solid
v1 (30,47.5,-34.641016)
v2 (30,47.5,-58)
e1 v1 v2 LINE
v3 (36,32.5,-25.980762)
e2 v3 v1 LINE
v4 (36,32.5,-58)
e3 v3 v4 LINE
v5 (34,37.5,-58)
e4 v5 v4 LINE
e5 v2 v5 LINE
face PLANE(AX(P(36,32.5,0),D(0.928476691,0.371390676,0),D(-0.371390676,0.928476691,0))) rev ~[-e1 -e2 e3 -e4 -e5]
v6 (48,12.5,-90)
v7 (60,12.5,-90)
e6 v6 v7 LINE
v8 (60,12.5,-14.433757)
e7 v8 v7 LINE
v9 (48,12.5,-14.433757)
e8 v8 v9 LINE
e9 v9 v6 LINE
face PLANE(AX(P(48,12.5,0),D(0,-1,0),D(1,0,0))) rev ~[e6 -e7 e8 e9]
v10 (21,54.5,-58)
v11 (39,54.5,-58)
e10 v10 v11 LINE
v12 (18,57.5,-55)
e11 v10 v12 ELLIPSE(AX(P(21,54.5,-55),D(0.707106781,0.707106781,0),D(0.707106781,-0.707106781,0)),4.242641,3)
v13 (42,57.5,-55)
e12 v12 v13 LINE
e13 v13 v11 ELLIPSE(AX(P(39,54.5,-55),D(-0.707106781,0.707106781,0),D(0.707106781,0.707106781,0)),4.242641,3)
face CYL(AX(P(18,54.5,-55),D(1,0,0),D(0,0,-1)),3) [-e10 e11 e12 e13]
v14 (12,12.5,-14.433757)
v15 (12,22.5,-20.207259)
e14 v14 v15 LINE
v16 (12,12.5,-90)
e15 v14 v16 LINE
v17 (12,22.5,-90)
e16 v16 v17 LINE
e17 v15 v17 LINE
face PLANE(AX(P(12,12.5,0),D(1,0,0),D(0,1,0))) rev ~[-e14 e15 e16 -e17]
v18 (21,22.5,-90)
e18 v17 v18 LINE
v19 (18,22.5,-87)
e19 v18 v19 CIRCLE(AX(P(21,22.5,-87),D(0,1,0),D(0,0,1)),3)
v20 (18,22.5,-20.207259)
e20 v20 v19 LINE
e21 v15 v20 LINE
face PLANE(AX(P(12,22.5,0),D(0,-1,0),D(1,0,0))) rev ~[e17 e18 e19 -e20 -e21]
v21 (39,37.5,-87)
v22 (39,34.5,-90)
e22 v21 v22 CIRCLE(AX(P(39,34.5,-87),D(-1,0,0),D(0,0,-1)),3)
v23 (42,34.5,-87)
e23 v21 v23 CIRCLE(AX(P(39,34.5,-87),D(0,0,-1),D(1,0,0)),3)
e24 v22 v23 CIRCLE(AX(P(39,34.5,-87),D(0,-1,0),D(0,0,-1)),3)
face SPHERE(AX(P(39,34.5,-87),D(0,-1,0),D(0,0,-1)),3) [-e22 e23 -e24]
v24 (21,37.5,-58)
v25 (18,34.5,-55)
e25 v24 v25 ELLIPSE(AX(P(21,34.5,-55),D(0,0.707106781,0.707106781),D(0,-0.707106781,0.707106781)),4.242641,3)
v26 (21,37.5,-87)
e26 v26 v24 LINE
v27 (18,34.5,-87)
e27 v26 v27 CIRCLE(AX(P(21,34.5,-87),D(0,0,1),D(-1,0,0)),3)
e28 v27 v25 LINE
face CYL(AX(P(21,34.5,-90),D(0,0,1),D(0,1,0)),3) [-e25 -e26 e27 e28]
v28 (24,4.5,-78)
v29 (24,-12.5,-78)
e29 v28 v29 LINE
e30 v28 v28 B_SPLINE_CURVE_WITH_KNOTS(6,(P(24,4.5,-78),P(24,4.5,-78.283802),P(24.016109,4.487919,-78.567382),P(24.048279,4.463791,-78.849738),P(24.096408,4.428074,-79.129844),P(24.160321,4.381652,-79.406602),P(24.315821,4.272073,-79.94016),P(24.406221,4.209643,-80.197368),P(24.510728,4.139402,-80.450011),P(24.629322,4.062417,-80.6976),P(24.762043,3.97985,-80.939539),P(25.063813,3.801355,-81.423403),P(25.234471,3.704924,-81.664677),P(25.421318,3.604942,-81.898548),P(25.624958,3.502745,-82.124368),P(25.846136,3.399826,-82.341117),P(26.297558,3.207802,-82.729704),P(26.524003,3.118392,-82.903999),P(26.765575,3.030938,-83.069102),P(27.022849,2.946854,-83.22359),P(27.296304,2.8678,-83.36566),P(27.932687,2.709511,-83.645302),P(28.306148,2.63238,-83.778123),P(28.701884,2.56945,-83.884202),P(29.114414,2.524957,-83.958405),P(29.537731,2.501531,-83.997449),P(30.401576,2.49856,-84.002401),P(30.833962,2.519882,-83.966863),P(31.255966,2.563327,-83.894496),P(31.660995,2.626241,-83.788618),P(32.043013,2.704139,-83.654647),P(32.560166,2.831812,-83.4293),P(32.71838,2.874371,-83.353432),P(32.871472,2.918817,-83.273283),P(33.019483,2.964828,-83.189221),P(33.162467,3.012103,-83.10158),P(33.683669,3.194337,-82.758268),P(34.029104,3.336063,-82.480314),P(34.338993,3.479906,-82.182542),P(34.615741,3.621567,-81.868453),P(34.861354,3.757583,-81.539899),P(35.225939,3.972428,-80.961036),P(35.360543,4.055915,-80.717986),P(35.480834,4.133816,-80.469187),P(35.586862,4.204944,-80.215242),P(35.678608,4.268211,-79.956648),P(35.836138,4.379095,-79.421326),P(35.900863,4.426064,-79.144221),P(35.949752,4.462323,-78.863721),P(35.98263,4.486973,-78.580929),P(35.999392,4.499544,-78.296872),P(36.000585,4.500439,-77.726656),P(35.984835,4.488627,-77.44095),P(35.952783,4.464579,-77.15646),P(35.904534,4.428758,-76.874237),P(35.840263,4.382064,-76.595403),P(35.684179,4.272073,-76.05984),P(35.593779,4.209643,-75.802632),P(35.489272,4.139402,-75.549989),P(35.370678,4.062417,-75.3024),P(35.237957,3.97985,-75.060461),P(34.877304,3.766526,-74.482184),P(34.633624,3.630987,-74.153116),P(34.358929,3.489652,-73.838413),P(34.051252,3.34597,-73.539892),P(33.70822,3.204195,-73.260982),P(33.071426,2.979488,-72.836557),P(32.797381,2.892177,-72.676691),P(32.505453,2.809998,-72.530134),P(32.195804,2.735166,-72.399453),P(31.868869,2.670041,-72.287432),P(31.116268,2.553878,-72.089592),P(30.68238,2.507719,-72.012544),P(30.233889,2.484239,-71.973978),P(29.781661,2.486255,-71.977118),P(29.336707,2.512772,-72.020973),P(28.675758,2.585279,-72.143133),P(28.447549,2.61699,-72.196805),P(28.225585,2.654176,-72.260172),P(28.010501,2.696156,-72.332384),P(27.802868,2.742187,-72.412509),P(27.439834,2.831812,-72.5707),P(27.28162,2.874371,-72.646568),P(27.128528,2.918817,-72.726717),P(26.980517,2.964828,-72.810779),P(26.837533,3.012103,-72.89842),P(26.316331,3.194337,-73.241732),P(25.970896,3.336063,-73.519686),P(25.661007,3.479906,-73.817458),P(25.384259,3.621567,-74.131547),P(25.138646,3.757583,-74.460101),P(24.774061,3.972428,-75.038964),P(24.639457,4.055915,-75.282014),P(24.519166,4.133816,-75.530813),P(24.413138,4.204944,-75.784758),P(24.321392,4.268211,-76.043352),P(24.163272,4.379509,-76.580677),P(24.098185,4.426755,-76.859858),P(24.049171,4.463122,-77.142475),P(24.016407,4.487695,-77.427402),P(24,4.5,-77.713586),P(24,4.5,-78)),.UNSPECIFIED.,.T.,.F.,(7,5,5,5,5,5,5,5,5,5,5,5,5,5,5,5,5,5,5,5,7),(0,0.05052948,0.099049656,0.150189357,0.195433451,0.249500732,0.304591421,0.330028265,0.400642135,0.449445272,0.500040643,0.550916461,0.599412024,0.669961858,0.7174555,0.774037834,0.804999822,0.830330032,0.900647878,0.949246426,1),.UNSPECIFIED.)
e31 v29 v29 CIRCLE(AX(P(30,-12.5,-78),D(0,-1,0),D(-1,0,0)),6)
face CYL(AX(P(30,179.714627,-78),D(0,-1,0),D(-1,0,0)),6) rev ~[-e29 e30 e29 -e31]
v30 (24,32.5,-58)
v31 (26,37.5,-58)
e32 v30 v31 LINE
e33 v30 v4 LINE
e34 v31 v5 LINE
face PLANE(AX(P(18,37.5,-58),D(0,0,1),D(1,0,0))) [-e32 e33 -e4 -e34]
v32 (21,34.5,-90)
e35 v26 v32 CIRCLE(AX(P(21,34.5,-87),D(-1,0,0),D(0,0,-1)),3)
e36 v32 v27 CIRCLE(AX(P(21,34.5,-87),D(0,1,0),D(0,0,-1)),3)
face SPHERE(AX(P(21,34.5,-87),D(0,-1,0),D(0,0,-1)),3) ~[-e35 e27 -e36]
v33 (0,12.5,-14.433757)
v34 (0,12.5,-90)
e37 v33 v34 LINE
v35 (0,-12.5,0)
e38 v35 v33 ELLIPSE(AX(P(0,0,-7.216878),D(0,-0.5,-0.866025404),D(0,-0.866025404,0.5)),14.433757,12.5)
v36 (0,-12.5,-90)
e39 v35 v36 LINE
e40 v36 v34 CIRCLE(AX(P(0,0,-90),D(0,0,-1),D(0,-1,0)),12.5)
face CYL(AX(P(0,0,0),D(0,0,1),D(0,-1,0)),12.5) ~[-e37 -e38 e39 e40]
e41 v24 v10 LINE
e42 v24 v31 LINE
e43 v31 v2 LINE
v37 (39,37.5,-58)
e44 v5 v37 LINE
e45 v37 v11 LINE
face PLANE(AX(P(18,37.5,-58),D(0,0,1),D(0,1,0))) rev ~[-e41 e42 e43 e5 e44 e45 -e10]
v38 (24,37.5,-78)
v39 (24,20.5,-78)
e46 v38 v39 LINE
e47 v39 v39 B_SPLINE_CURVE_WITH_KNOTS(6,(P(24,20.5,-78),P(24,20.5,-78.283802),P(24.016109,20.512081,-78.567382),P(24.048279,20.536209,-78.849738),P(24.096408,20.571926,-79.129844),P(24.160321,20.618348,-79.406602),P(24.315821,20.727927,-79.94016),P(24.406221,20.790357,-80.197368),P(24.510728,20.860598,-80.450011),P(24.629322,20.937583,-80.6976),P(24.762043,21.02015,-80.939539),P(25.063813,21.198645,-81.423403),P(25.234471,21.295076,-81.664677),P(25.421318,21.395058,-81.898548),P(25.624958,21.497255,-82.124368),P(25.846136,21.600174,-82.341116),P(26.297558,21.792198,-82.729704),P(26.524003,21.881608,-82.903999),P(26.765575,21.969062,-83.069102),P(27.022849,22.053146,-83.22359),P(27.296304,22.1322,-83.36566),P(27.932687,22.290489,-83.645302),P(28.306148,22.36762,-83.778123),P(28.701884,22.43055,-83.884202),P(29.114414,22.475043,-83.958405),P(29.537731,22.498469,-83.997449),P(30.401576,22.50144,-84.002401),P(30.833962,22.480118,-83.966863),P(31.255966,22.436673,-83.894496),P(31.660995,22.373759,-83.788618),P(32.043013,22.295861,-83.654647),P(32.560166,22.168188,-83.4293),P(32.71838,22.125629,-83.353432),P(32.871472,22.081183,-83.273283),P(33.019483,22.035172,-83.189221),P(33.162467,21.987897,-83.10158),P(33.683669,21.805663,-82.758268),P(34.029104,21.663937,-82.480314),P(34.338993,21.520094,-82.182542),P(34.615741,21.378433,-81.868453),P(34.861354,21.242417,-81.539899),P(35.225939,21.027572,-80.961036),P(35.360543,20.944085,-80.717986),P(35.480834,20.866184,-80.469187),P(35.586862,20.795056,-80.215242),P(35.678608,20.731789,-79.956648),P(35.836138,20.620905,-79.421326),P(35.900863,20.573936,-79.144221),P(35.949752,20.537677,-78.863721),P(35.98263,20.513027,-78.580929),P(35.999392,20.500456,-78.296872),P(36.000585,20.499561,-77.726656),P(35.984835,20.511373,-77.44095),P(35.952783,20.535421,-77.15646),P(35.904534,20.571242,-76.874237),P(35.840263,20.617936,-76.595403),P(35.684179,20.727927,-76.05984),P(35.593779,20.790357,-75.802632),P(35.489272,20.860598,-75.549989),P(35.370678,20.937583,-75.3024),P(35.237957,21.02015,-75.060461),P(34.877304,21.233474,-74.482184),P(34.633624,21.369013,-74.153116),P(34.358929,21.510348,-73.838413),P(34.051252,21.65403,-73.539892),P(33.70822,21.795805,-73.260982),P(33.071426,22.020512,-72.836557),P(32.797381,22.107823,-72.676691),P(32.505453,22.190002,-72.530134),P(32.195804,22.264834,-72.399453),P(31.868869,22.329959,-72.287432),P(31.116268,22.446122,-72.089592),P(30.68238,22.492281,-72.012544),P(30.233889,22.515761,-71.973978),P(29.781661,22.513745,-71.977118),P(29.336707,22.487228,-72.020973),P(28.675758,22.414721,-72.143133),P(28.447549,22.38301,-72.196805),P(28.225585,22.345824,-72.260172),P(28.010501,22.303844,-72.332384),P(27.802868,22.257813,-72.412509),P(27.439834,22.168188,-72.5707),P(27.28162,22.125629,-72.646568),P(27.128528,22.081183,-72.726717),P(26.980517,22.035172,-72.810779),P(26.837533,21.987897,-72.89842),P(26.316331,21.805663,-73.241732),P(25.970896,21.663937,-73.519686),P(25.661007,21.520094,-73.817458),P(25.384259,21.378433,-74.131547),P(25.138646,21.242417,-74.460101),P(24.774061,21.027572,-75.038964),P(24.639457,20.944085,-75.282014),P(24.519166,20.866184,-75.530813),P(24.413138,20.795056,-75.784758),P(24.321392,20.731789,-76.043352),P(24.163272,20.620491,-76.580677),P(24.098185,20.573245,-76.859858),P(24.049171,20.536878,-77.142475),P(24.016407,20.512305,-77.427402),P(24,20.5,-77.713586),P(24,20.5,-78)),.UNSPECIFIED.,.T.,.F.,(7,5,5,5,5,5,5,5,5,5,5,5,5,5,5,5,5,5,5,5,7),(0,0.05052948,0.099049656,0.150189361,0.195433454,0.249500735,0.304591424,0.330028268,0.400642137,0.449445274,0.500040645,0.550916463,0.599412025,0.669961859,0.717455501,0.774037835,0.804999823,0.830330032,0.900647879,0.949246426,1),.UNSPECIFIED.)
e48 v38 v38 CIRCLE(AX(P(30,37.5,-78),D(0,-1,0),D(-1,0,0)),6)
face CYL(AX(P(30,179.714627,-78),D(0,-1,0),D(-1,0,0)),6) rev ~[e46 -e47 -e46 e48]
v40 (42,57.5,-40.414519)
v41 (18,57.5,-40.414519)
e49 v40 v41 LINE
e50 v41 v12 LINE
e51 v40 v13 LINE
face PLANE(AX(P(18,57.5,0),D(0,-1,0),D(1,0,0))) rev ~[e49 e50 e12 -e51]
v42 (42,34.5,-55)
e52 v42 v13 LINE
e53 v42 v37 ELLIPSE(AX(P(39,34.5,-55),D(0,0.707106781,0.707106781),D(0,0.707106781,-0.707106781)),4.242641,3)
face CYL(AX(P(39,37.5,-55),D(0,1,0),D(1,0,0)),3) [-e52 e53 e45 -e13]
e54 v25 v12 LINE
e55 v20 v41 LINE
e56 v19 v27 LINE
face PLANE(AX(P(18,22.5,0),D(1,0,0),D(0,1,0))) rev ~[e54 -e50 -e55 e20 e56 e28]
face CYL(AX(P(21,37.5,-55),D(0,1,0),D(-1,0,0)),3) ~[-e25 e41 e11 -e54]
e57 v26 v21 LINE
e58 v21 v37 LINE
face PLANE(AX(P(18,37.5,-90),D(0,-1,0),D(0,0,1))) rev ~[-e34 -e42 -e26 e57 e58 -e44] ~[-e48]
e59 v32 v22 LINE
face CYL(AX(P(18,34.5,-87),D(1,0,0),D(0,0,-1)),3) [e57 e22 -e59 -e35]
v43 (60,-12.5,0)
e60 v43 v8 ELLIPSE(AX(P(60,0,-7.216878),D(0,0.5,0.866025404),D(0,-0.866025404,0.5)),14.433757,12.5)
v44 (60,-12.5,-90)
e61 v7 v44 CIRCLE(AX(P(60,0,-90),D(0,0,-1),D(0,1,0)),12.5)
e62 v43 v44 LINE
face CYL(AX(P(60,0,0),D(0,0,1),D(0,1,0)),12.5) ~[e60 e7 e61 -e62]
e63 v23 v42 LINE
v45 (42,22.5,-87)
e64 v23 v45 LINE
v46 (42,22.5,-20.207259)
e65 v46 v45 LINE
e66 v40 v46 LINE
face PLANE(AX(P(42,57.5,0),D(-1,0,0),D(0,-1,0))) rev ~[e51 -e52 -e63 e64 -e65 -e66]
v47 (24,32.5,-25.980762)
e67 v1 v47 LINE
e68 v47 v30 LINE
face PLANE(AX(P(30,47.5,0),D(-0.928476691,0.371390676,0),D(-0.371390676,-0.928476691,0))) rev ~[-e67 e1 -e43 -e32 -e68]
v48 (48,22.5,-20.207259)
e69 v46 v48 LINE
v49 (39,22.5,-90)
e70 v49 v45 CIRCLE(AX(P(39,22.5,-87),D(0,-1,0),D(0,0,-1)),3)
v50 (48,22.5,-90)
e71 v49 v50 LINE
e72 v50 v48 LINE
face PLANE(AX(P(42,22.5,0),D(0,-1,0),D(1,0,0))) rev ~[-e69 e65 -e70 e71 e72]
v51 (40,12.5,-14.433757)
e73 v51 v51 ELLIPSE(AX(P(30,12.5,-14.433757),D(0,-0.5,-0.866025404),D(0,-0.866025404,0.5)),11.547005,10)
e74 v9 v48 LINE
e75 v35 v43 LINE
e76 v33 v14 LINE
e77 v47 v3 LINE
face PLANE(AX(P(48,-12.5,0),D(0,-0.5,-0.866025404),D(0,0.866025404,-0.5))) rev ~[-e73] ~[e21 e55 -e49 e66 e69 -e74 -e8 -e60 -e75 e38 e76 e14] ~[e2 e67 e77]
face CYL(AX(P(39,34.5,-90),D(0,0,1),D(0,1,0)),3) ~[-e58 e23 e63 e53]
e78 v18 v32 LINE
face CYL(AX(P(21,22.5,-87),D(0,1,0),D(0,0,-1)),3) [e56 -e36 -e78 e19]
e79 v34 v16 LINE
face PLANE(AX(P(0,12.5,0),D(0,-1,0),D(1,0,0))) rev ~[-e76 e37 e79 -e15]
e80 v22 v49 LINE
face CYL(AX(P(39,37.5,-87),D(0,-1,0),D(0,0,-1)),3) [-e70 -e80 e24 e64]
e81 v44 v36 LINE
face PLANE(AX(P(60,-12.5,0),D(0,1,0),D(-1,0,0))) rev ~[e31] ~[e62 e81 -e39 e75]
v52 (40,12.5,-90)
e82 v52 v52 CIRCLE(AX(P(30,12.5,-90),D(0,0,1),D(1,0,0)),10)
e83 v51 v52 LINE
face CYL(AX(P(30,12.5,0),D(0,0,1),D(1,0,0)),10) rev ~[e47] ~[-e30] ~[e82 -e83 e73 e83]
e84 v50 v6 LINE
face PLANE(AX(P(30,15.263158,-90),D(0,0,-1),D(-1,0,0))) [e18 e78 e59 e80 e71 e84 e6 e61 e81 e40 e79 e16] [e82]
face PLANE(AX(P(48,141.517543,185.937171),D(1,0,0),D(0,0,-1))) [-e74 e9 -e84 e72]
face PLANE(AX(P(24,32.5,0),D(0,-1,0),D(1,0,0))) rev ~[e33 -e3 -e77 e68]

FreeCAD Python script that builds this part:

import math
import FreeCAD as App
import Part
import Sketcher
from FreeCAD import Vector
Q = App.Units.Quantity


def edges_at(feature, points):
    """Names of the edges that pass closest to the given points."""
    edges = feature.Shape.Edges
    near = lambda p: min(range(len(edges)), key=lambda i: edges[i].distToShape(Part.Vertex(*p))[0])
    return sorted({f"Edge{near(p) + 1}" for p in points})


def add_polygon(sketch, points):
    """Adds a closed chain of lines whose ends are joined by coincident constraints."""
    first, n = sketch.GeometryCount, len(points)
    for a, b in zip(points, points[1:] + points[:1]):
        sketch.addGeometry(Part.LineSegment(App.Vector(*a, 0), App.Vector(*b, 0)), False)
    for i in range(n):
        sketch.addConstraint(Sketcher.Constraint("Coincident", first + i, 2, first + (i + 1) % n, 1))

doc = App.newDocument("Part")
body = doc.addObject("PartDesign::Body", "Body")

# Sketch on XY plane
sketch1 = body.newObject("Sketcher::SketchObject", "Sketch")
sketch1.AttachmentSupport = (doc.getObject("XY_Plane"), [""])
sketch1.MapMode = "FlatFace"
sketch1.addGeometry(Part.LineSegment(Vector(12, 12, 0), Vector(0, 12, 0)), False)  # 0
sketch1.addGeometry(Part.ArcOfCircle(Part.Circle(Vector(0, 0, 0), Vector(0, 0, 1), 12), math.radians(90), math.radians(270)), False)  # 1
sketch1.addGeometry(Part.LineSegment(Vector(0, -12, 0), Vector(60, -12, 0)), False)  # 2
sketch1.addGeometry(Part.ArcOfCircle(Part.Circle(Vector(60, 0, 0), Vector(0, 0, 1), 12), math.radians(-90), math.radians(90)), False)  # 3
sketch1.addGeometry(Part.LineSegment(Vector(60, 12, 0), Vector(48, 12, 0)), False)  # 4
sketch1.addGeometry(Part.LineSegment(Vector(48, 12, 0), Vector(48, 22, 0)), False)  # 5
sketch1.addGeometry(Part.LineSegment(Vector(48, 22, 0), Vector(42, 22, 0)), False)  # 6
sketch1.addGeometry(Part.LineSegment(Vector(42, 22, 0), Vector(42, 58, 0)), False)  # 7
sketch1.addGeometry(Part.LineSegment(Vector(42, 58, 0), Vector(18, 58, 0)), False)  # 8
sketch1.addGeometry(Part.LineSegment(Vector(18, 58, 0), Vector(18, 22, 0)), False)  # 9
sketch1.addGeometry(Part.LineSegment(Vector(18, 22, 0), Vector(12, 22, 0)), False)  # 10
sketch1.addGeometry(Part.LineSegment(Vector(12, 22, 0), Vector(12, 12, 0)), False)  # 11
sketch1.addGeometry(Part.Circle(Vector(30, 12, 0), Vector(0, 0, 1), 10), False)  # 12
add_polygon(sketch1, [(24, 32), (30, 48), (36, 32)])  # lines 13-15
sketch1.addConstraint([
    Sketcher.Constraint("Tangent", 0, 2, 1, 1),
    Sketcher.Constraint("Tangent", 1, 2, 2, 1),
    Sketcher.Constraint("Tangent", 2, 2, 3, 1),
    Sketcher.Constraint("Tangent", 3, 2, 4, 1),
    Sketcher.Constraint("Coincident", 4, 2, 5, 1),
    Sketcher.Constraint("Coincident", 5, 2, 6, 1),
    Sketcher.Constraint("Coincident", 6, 2, 7, 1),
    Sketcher.Constraint("Coincident", 7, 2, 8, 1),
    Sketcher.Constraint("Coincident", 8, 2, 9, 1),
    Sketcher.Constraint("Coincident", 9, 2, 10, 1),
    Sketcher.Constraint("Coincident", 10, 2, 11, 1),
    Sketcher.Constraint("Coincident", 11, 2, 0, 1),
    Sketcher.Constraint("Horizontal", 0),
    Sketcher.Constraint("Horizontal", 2),
    Sketcher.Constraint("Horizontal", 4),
    Sketcher.Constraint("Vertical", 5),
    Sketcher.Constraint("Horizontal", 6),
    Sketcher.Constraint("Vertical", 7),
    Sketcher.Constraint("Horizontal", 8),
    Sketcher.Constraint("Vertical", 9),
    Sketcher.Constraint("Horizontal", 10),
    Sketcher.Constraint("Vertical", 11),
    Sketcher.Constraint("Horizontal", 15),
    Sketcher.Constraint("Coincident", 1, 3, -1, 1),
    Sketcher.Constraint("Equal", 1, 3),
    Sketcher.Constraint("Horizontal", 12, 3, 0, 2),
    Sketcher.Constraint("Horizontal", 6, 2, 9, 2),
    Sketcher.Constraint("Vertical", 12, 3, 13, 2),
    Sketcher.Constraint("Equal", 0, 4),
    Sketcher.Constraint("Equal", 6, 10),
    Sketcher.Constraint("Equal", 4, 15),
    Sketcher.Constraint("Equal", 13, 14),
    Sketcher.Constraint("Diameter", 12, Q("20 mm")),
    Sketcher.Constraint("Radius", 1, Q("12.5 mm")),
    Sketcher.Constraint("DistanceX", 0, 2, 0, 1, Q("12 mm")),
    Sketcher.Constraint("DistanceX", 2, 1, 2, 2, Q("60 mm")),
    Sketcher.Constraint("DistanceX", 6, 2, 6, 1, Q("6 mm")),
    Sketcher.Constraint("DistanceY", 5, 1, 5, 2, Q("10 mm")),
    Sketcher.Constraint("DistanceY", 7, 1, 7, 2, Q("35 mm")),
    Sketcher.Constraint("DistanceX", -1, 1, 12, 3, Q("30 mm")),
    Sketcher.Constraint("DistanceY", 13, 2, 7, 2, Q("10 mm")),
    Sketcher.Constraint("DistanceY", 6, 2, 14, 2, Q("10 mm")),
])
pad1 = body.newObject("PartDesign::Pad", "Pad")
pad1.Profile = sketch1
pad1.Length = 90
pad1.Reversed = True

# Sketch on YZ plane
sketch2 = body.newObject("Sketcher::SketchObject", "Sketch001")
sketch2.AttachmentSupport = (doc.getObject("YZ_Plane"), [""])
sketch2.MapMode = "FlatFace"
sketch2.AttachmentOffset = App.Placement(Vector(0, 0, 48), App.Rotation())
add_polygon(sketch2, [(-219, 119), (-12, 0), (58, -40), (264, -159), (502, 253), (19, 531)])  # lines 0-5
sketch2.addConstraint([
    Sketcher.Constraint("PointOnObject", 0, 2, -1),
    Sketcher.Constraint("Parallel", 0, 1),
    Sketcher.Constraint("Parallel", 1, 2),
    Sketcher.Constraint("Perpendicular", 2, 3),
    Sketcher.Constraint("Perpendicular", 3, 4),
    Sketcher.Constraint("Perpendicular", 4, 5),
    Sketcher.Constraint("Equal", 0, 2),
    Sketcher.Constraint("Angle", 0, Q("-30 deg")),
    Sketcher.Constraint("DistanceX", 0, 2, 1, 2, Q("70 mm")),
    Sketcher.Constraint("DistanceX", 0, 2, -1, 1, Q("12.5 mm")),
    Sketcher.Constraint("DistanceY", -1, 1, 3, 2, Q("252.8568 mm")),
    Sketcher.Constraint("Distance", 3, Q("476.07017 mm")),
])
pocket1 = body.newObject("PartDesign::Pocket", "Pocket")
pocket1.Profile = sketch2
pocket1.Type = "ThroughAll"
pocket1.Midplane = True

# Sketch on YZ plane
sketch3 = body.newObject("Sketcher::SketchObject", "Sketch002")
sketch3.AttachmentSupport = (doc.getObject("YZ_Plane"), [""])
sketch3.MapMode = "FlatFace"
sketch3.AttachmentOffset = App.Placement(Vector(0, 0, 18), App.Rotation())
add_polygon(sketch3, [(58, -90), (38, -90), (38, -58), (58, -58)])  # lines 0-3
sketch3.addConstraint([
    Sketcher.Constraint("Horizontal", 0),
    Sketcher.Constraint("Vertical", 1),
    Sketcher.Constraint("Horizontal", 2),
    Sketcher.Constraint("Vertical", 3),
    Sketcher.Constraint("DistanceX", 0, 2, 0, 1, Q("20 mm")),
    Sketcher.Constraint("DistanceY", 1, 1, 1, 2, Q("32 mm")),
    Sketcher.Constraint("DistanceY", 0, 2, -1, 1, Q("90 mm")),
    Sketcher.Constraint("DistanceX", -1, 1, 0, 2, Q("37.5 mm")),
])
pocket2 = body.newObject("PartDesign::Pocket", "Pocket001")
pocket2.Profile = sketch3
pocket2.Type = "ThroughAll"
pocket2.Reversed = True

# Sketch on XZ plane
sketch4 = body.newObject("Sketcher::SketchObject", "Sketch003")
sketch4.AttachmentSupport = (doc.getObject("XZ_Plane"), [""])
sketch4.MapMode = "FlatFace"
sketch4.AttachmentOffset = App.Placement(Vector(0, 0, -37.5), App.Rotation())
add_polygon(sketch4, [(18, -90), (18, -58), (42, -58), (42, -90)])  # lines 0-3
sketch4.addConstraint([
    Sketcher.Constraint("Vertical", 0),
    Sketcher.Constraint("Horizontal", 1),
    Sketcher.Constraint("Vertical", 2),
    Sketcher.Constraint("Horizontal", 3),
    Sketcher.Constraint("DistanceX", 1, 1, 1, 2, Q("24 mm")),
    Sketcher.Constraint("DistanceY", 0, 1, 0, 2, Q("32 mm")),
    Sketcher.Constraint("DistanceX", -1, 1, 0, 2, Q("18 mm")),
    Sketcher.Constraint("DistanceY", 0, 2, -1, 1, Q("58 mm")),
])
pad2 = body.newObject("PartDesign::Pad", "Pad001")
pad2.Profile = sketch4
pad2.Length = 5

# Sketch on XZ plane
sketch5 = body.newObject("Sketcher::SketchObject", "Sketch004")
sketch5.AttachmentSupport = (doc.getObject("XZ_Plane"), [""])
sketch5.MapMode = "FlatFace"
sketch5.AttachmentOffset = App.Placement(Vector(0, 0, -37.5), App.Rotation())
sketch5.addGeometry(Part.Circle(Vector(30, -78, 0), Vector(0, 0, 1), 6), False)
sketch5.addConstraint([
    Sketcher.Constraint("Diameter", 0, Q("12 mm")),
    Sketcher.Constraint("DistanceX", -1, 1, 0, 3, Q("30 mm")),
    Sketcher.Constraint("DistanceY", 0, 3, -1, 1, Q("78 mm")),
])
doc.recompute()
hole = body.newObject("PartDesign::Hole", "Hole")
hole.Profile = sketch5
hole.ThreadType = "None"
hole.Diameter = 12
hole.DepthType = "ThroughAll"
hole.Reversed = True
doc.recompute()

fillet = body.newObject("PartDesign::Fillet", "Fillet")
fillet.Base = (hole, edges_at(hole, [
    (42, 30, -90),
    (18, 30, -90),
    (30, 37.5, -90),
    (42, 47.5, -58),
    (30, 57.5, -58),
    (42, 37.5, -74),
    (18, 37.5, -74),
    (18, 47.5, -58),
]))
fillet.Radius = 3

doc.recompute()
